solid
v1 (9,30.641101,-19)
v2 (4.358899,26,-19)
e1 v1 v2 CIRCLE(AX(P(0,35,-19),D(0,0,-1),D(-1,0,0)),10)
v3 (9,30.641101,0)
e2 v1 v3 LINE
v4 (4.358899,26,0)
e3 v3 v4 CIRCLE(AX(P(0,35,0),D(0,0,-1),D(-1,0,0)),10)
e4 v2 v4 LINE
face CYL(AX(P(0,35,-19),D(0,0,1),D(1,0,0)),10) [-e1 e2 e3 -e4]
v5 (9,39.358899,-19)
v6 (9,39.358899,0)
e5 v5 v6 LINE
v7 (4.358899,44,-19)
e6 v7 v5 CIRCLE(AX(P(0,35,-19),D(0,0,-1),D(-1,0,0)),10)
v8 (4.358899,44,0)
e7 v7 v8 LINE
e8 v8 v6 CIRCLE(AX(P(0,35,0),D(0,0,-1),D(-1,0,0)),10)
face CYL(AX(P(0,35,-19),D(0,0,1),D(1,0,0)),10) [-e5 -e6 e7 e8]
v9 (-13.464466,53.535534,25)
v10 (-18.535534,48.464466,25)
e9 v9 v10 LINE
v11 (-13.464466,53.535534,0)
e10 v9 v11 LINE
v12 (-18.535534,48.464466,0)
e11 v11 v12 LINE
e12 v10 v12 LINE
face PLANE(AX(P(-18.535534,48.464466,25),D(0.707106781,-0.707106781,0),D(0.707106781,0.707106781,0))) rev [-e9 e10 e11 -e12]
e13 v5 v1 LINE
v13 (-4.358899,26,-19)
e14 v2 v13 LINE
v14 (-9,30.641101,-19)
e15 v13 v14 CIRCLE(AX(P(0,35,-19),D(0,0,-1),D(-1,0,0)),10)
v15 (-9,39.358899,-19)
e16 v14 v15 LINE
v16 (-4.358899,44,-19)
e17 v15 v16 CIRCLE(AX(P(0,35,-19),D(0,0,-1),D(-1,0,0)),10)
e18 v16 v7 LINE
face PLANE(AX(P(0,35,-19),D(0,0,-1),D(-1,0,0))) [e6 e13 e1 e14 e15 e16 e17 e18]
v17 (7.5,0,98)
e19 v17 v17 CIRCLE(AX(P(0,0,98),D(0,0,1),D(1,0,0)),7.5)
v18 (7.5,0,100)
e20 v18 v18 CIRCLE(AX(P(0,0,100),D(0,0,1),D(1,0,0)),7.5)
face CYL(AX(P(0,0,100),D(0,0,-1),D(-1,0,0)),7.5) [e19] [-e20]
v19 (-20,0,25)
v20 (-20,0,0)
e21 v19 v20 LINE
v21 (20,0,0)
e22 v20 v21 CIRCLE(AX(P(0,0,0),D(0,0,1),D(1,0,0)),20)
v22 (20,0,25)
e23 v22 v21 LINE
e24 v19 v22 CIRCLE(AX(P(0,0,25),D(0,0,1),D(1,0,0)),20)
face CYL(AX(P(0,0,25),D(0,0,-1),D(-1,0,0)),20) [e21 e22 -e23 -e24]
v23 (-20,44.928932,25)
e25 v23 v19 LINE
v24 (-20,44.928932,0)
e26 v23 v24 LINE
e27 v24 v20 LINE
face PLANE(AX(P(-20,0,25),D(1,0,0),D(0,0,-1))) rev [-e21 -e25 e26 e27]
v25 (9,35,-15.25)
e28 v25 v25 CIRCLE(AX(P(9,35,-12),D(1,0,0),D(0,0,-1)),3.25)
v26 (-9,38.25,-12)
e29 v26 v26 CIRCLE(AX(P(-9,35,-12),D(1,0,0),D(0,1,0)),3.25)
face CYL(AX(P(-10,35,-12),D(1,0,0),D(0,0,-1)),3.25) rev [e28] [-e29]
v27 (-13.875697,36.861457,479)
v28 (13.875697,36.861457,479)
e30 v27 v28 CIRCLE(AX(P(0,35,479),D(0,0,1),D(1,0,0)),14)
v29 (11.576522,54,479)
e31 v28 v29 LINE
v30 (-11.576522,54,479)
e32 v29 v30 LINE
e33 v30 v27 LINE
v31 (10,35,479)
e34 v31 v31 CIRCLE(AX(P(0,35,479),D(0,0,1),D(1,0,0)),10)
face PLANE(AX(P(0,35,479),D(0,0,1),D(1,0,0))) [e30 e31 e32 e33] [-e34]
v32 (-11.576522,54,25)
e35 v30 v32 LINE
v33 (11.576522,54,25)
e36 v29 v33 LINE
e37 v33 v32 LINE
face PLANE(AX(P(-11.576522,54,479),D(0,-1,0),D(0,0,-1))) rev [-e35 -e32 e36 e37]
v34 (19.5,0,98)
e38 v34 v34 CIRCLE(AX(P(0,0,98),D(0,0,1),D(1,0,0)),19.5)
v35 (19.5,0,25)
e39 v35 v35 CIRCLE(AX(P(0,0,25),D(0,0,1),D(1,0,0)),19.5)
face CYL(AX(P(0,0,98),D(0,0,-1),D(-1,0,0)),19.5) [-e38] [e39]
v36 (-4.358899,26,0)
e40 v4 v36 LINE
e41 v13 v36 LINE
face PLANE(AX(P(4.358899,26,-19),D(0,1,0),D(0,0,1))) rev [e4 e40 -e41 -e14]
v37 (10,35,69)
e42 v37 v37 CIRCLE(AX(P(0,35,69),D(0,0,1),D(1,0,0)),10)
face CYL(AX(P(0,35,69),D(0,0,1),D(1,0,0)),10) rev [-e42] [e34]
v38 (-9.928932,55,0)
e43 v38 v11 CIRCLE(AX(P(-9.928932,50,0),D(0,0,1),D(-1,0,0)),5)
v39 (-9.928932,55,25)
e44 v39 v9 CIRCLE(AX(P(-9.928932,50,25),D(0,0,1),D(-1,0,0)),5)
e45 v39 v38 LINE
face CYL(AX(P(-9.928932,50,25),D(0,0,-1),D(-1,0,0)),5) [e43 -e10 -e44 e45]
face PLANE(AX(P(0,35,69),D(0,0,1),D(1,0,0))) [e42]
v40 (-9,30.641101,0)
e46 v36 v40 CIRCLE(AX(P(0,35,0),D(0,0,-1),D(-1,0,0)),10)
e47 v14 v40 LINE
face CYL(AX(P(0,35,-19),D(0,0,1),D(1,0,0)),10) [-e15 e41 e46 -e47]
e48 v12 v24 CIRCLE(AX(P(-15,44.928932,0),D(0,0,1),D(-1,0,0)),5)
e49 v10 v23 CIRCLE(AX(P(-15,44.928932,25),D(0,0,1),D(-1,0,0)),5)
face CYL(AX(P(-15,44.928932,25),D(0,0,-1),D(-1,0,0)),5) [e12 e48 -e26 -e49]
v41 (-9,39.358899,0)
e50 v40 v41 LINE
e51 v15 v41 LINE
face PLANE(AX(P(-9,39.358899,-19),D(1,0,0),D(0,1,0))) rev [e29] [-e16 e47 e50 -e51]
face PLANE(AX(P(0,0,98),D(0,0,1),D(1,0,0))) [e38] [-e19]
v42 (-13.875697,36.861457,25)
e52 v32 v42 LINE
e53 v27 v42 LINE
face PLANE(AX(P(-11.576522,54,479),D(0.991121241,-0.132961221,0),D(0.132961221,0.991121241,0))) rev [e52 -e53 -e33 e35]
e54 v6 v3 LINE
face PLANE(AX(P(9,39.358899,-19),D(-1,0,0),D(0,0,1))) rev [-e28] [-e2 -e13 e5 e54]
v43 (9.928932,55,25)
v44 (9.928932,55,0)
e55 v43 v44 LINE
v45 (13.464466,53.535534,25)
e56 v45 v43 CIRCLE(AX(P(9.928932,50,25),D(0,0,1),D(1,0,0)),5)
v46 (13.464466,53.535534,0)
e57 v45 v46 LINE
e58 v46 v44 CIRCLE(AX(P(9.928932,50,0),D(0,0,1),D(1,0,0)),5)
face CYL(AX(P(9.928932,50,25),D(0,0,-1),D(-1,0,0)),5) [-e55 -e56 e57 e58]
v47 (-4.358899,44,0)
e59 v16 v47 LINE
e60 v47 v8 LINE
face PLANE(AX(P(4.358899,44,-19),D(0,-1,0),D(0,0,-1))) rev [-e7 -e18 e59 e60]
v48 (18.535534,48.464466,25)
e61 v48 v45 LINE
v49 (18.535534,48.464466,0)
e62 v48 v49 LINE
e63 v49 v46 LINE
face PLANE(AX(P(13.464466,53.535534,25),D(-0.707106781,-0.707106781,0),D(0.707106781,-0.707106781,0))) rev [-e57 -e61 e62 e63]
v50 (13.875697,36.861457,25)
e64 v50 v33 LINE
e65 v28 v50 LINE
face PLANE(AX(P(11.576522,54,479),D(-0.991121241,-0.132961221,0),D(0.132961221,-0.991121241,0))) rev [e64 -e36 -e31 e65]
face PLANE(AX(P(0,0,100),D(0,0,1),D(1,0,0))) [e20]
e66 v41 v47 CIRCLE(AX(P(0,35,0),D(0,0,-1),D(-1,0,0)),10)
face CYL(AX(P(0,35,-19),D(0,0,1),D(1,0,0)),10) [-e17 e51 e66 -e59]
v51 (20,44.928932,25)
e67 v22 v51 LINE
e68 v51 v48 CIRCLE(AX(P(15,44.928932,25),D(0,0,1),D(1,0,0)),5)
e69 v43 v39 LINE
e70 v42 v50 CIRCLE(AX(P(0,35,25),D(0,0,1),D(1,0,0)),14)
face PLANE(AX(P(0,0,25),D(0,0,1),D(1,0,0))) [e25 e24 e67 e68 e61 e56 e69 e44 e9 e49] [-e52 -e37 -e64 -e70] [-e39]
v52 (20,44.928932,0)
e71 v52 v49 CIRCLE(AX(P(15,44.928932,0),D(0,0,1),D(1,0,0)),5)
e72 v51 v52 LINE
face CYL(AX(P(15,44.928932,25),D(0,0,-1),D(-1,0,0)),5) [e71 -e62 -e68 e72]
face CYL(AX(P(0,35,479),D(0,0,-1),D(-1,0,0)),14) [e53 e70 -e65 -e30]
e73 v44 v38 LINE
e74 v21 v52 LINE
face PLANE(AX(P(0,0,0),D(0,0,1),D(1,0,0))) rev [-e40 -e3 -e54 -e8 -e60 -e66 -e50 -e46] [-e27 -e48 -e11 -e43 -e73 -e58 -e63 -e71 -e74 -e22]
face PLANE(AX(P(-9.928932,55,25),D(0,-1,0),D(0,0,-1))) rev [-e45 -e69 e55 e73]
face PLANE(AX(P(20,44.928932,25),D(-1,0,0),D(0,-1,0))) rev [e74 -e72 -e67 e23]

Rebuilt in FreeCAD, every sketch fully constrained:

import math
import FreeCAD as App
import Part
import Sketcher

V = App.Vector
Q = App.Units.Quantity

doc = App.newDocument("Part")
body = doc.addObject("PartDesign::Body", "Body")

# Sketch on XY plane
sketch1 = body.newObject("Sketcher::SketchObject", "Sketch")
sketch1.AttachmentSupport = (doc.getObject("XY_Plane"), [""])
sketch1.MapMode = "FlatFace"
sketch1.addGeometry([
    Part.LineSegment(V(-20, 44.9, 0), V(-20, 0, 0)),  # 0
    Part.ArcOfCircle(Part.Circle(V(0, 0, 0), V(0, 0, 1), 20), math.radians(180), math.radians(360)),  # 1
    Part.LineSegment(V(20, 0, 0), V(20, 44.9, 0)),  # 2
    Part.ArcOfCircle(Part.Circle(V(15, 44.9, 0), V(0, 0, 1), 5), math.radians(0), math.radians(45)),  # 3
    Part.LineSegment(V(18.5, 48.5, 0), V(13.5, 53.5, 0)),  # 4
    Part.ArcOfCircle(Part.Circle(V(9.9, 50, 0), V(0, 0, 1), 5), math.radians(45), math.radians(90)),  # 5
    Part.LineSegment(V(9.9, 55, 0), V(-9.9, 55, 0)),  # 6
    Part.ArcOfCircle(Part.Circle(V(-9.9, 50, 0), V(0, 0, 1), 5), math.radians(90), math.radians(135)),  # 7
    Part.LineSegment(V(-13.5, 53.5, 0), V(-18.5, 48.5, 0)),  # 8
    Part.ArcOfCircle(Part.Circle(V(-15, 44.9, 0), V(0, 0, 1), 5), math.radians(135), math.radians(180)),  # 9
], False)
sketch1.addConstraint([
    Sketcher.Constraint("Tangent", 0, 2, 1, 1),
    Sketcher.Constraint("Tangent", 1, 2, 2, 1),
    Sketcher.Constraint("Tangent", 2, 2, 3, 1),
    Sketcher.Constraint("Tangent", 3, 2, 4, 1),
    Sketcher.Constraint("Tangent", 4, 2, 5, 1),
    Sketcher.Constraint("Tangent", 5, 2, 6, 1),
    Sketcher.Constraint("Tangent", 6, 2, 7, 1),
    Sketcher.Constraint("Tangent", 7, 2, 8, 1),
    Sketcher.Constraint("Tangent", 8, 2, 9, 1),
    Sketcher.Constraint("Tangent", 9, 2, 0, 1),
    Sketcher.Constraint("Vertical", 0),
    Sketcher.Constraint("Vertical", 2),
    Sketcher.Constraint("Horizontal", 6),
    Sketcher.Constraint("Coincident", 1, 3, -1, 1),
    Sketcher.Constraint("Equal", 3, 5),
    Sketcher.Constraint("Equal", 5, 7),
    Sketcher.Constraint("Equal", 7, 9),
    Sketcher.Constraint("Symmetric", 4, 2, 7, 2, -2),
    Sketcher.Constraint("Perpendicular", 4, 8),
    Sketcher.Constraint("Radius", 1, Q("20 mm")),
    Sketcher.Constraint("Radius", 3, Q("5 mm")),
    Sketcher.Constraint("DistanceY", -1, 1, 5, 3, Q("50 mm")),
    Sketcher.Constraint("DistanceX", 5, 3, 3, 2, Q("8.606602 mm")),
])
pad1 = body.newObject("PartDesign::Pad", "Pad")
pad1.Profile = sketch1
pad1.Length = 25

# Sketch on XY plane
sketch2 = body.newObject("Sketcher::SketchObject", "Sketch001")
sketch2.AttachmentSupport = (doc.getObject("XY_Plane"), [""])
sketch2.MapMode = "FlatFace"
sketch2.AttachmentOffset = App.Placement(V(0, 0, 25), App.Rotation())
sketch2.addGeometry(Part.Circle(V(0, 0, 0), V(0, 0, 1), 20), False)
sketch2.addConstraint([
    Sketcher.Constraint("Coincident", 0, 3, -1, 1),
    Sketcher.Constraint("Diameter", 0, Q("39 mm")),
])
pad2 = body.newObject("PartDesign::Pad", "Pad001")
pad2.Profile = sketch2
pad2.Length = 73

# Sketch on XY plane
sketch3 = body.newObject("Sketcher::SketchObject", "Sketch002")
sketch3.AttachmentSupport = (doc.getObject("XY_Plane"), [""])
sketch3.MapMode = "FlatFace"
sketch3.AttachmentOffset = App.Placement(V(0, 0, 98), App.Rotation())
sketch3.addGeometry(Part.Circle(V(0, 0, 0), V(0, 0, 1), 8), False)
sketch3.addConstraint([
    Sketcher.Constraint("Coincident", 0, 3, -1, 1),
    Sketcher.Constraint("Diameter", 0, Q("15 mm")),
])
pad3 = body.newObject("PartDesign::Pad", "Pad002")
pad3.Profile = sketch3
pad3.Length = 2

# Sketch on XY plane
sketch4 = body.newObject("Sketcher::SketchObject", "Sketch003")
sketch4.AttachmentSupport = (doc.getObject("XY_Plane"), [""])
sketch4.MapMode = "FlatFace"
sketch4.AttachmentOffset = App.Placement(V(0, 0, 25), App.Rotation())
sketch4.addGeometry([
    Part.LineSegment(V(-12, 54, 0), V(-14, 37, 0)),
    Part.ArcOfCircle(Part.Circle(V(0, 35, 0), V(0, 0, 1), 14), math.radians(172), math.radians(368)),
    Part.LineSegment(V(14, 37, 0), V(12, 54, 0)),
    Part.LineSegment(V(12, 54, 0), V(-12, 54, 0)),
], False)
sketch4.addConstraint([
    Sketcher.Constraint("Tangent", 0, 2, 1, 1),
    Sketcher.Constraint("Tangent", 1, 2, 2, 1),
    Sketcher.Constraint("Coincident", 2, 2, 3, 1),
    Sketcher.Constraint("Coincident", 3, 2, 0, 1),
    Sketcher.Constraint("Horizontal", 3),
    Sketcher.Constraint("Symmetric", 0, 2, 1, 2, -2),
    Sketcher.Constraint("Radius", 1, Q("14 mm")),
    Sketcher.Constraint("DistanceY", -1, 1, 1, 3, Q("35 mm")),
    Sketcher.Constraint("DistanceY", -1, 1, 2, 2, Q("54 mm")),
    Sketcher.Constraint("DistanceX", 3, 2, 3, 1, Q("23.153044 mm")),
])
pad4 = body.newObject("PartDesign::Pad", "Pad003")
pad4.Profile = sketch4
pad4.Length = 454

# Sketch on XY plane
sketch5 = body.newObject("Sketcher::SketchObject", "Sketch004")
sketch5.AttachmentSupport = (doc.getObject("XY_Plane"), [""])
sketch5.MapMode = "FlatFace"
sketch5.AttachmentOffset = App.Placement(V(0, 0, 479), App.Rotation())
sketch5.addGeometry(Part.Circle(V(0, 35, 0), V(0, 0, 1), 10), False)
sketch5.addConstraint([
    Sketcher.Constraint("PointOnObject", 0, 3, -2),
    Sketcher.Constraint("Diameter", 0, Q("20 mm")),
    Sketcher.Constraint("DistanceY", -1, 1, 0, 3, Q("35 mm")),
])
pocket1 = body.newObject("PartDesign::Pocket", "Pocket")
pocket1.Profile = sketch5
pocket1.Length = 410

# Sketch on XY plane
sketch6 = body.newObject("Sketcher::SketchObject", "Sketch005")
sketch6.AttachmentSupport = (doc.getObject("XY_Plane"), [""])
sketch6.MapMode = "FlatFace"
sketch6.addGeometry([
    Part.LineSegment(V(-4, 44, 0), V(4, 44, 0)),  # 0
    Part.ArcOfCircle(Part.Circle(V(0, 35, 0), V(0, 0, 1), 10), math.radians(26), math.radians(64)),  # 1
    Part.LineSegment(V(9, 39, 0), V(9, 31, 0)),  # 2
    Part.ArcOfCircle(Part.Circle(V(0, 35, 0), V(0, 0, 1), 10), math.radians(-64), math.radians(-26)),  # 3
    Part.LineSegment(V(4, 26, 0), V(-4, 26, 0)),  # 4
    Part.ArcOfCircle(Part.Circle(V(0, 35, 0), V(0, 0, 1), 10), math.radians(-154), math.radians(-116)),  # 5
    Part.LineSegment(V(-9, 31, 0), V(-9, 39, 0)),  # 6
    Part.ArcOfCircle(Part.Circle(V(0, 35, 0), V(0, 0, 1), 10), math.radians(116), math.radians(154)),  # 7
], False)
sketch6.addConstraint([
    Sketcher.Constraint("Coincident", 0, 2, 1, 2),
    Sketcher.Constraint("Coincident", 1, 1, 2, 1),
    Sketcher.Constraint("Coincident", 2, 2, 3, 2),
    Sketcher.Constraint("Coincident", 3, 1, 4, 1),
    Sketcher.Constraint("Coincident", 4, 2, 5, 2),
    Sketcher.Constraint("Coincident", 5, 1, 6, 1),
    Sketcher.Constraint("Coincident", 6, 2, 7, 2),
    Sketcher.Constraint("Coincident", 7, 1, 0, 1),
    Sketcher.Constraint("Horizontal", 0),
    Sketcher.Constraint("Vertical", 2),
    Sketcher.Constraint("Horizontal", 4),
    Sketcher.Constraint("Vertical", 6),
    Sketcher.Constraint("Coincident", 3, 3, 1, 3),
    Sketcher.Constraint("Coincident", 5, 3, 1, 3),
    Sketcher.Constraint("Coincident", 7, 3, 1, 3),
    Sketcher.Constraint("Equal", 1, 3),
    Sketcher.Constraint("Equal", 3, 5),
    Sketcher.Constraint("Equal", 5, 7),
    Sketcher.Constraint("Symmetric", 2, 2, 5, 1, -2),
    Sketcher.Constraint("Vertical", 0, 2, 3, 1),
    Sketcher.Constraint("Equal", 4, 2),
    Sketcher.Constraint("Radius", 1, Q("10 mm")),
    Sketcher.Constraint("DistanceY", -1, 1, 1, 3, Q("35 mm")),
    Sketcher.Constraint("DistanceY", -1, 1, 0, 2, Q("44 mm")),
])
pad5 = body.newObject("PartDesign::Pad", "Pad004")
pad5.Profile = sketch6
pad5.Length = 19
pad5.Reversed = True

# Sketch on YZ plane
sketch7 = body.newObject("Sketcher::SketchObject", "Sketch006")
sketch7.AttachmentSupport = (doc.getObject("YZ_Plane"), [""])
sketch7.MapMode = "FlatFace"
sketch7.AttachmentOffset = App.Placement(V(0, 0, 9), App.Rotation())
sketch7.addGeometry(Part.Circle(V(35, -12, 0), V(0, 0, 1), 3.2), False)
sketch7.addConstraint([
    Sketcher.Constraint("Diameter", 0, Q("6.5 mm")),
    Sketcher.Constraint("DistanceX", -1, 1, 0, 3, Q("35 mm")),
    Sketcher.Constraint("DistanceY", 0, 3, -1, 1, Q("12 mm")),
])
pocket2 = body.newObject("PartDesign::Pocket", "Pocket001")
pocket2.Profile = sketch7
pocket2.Length = 19

doc.recompute()
